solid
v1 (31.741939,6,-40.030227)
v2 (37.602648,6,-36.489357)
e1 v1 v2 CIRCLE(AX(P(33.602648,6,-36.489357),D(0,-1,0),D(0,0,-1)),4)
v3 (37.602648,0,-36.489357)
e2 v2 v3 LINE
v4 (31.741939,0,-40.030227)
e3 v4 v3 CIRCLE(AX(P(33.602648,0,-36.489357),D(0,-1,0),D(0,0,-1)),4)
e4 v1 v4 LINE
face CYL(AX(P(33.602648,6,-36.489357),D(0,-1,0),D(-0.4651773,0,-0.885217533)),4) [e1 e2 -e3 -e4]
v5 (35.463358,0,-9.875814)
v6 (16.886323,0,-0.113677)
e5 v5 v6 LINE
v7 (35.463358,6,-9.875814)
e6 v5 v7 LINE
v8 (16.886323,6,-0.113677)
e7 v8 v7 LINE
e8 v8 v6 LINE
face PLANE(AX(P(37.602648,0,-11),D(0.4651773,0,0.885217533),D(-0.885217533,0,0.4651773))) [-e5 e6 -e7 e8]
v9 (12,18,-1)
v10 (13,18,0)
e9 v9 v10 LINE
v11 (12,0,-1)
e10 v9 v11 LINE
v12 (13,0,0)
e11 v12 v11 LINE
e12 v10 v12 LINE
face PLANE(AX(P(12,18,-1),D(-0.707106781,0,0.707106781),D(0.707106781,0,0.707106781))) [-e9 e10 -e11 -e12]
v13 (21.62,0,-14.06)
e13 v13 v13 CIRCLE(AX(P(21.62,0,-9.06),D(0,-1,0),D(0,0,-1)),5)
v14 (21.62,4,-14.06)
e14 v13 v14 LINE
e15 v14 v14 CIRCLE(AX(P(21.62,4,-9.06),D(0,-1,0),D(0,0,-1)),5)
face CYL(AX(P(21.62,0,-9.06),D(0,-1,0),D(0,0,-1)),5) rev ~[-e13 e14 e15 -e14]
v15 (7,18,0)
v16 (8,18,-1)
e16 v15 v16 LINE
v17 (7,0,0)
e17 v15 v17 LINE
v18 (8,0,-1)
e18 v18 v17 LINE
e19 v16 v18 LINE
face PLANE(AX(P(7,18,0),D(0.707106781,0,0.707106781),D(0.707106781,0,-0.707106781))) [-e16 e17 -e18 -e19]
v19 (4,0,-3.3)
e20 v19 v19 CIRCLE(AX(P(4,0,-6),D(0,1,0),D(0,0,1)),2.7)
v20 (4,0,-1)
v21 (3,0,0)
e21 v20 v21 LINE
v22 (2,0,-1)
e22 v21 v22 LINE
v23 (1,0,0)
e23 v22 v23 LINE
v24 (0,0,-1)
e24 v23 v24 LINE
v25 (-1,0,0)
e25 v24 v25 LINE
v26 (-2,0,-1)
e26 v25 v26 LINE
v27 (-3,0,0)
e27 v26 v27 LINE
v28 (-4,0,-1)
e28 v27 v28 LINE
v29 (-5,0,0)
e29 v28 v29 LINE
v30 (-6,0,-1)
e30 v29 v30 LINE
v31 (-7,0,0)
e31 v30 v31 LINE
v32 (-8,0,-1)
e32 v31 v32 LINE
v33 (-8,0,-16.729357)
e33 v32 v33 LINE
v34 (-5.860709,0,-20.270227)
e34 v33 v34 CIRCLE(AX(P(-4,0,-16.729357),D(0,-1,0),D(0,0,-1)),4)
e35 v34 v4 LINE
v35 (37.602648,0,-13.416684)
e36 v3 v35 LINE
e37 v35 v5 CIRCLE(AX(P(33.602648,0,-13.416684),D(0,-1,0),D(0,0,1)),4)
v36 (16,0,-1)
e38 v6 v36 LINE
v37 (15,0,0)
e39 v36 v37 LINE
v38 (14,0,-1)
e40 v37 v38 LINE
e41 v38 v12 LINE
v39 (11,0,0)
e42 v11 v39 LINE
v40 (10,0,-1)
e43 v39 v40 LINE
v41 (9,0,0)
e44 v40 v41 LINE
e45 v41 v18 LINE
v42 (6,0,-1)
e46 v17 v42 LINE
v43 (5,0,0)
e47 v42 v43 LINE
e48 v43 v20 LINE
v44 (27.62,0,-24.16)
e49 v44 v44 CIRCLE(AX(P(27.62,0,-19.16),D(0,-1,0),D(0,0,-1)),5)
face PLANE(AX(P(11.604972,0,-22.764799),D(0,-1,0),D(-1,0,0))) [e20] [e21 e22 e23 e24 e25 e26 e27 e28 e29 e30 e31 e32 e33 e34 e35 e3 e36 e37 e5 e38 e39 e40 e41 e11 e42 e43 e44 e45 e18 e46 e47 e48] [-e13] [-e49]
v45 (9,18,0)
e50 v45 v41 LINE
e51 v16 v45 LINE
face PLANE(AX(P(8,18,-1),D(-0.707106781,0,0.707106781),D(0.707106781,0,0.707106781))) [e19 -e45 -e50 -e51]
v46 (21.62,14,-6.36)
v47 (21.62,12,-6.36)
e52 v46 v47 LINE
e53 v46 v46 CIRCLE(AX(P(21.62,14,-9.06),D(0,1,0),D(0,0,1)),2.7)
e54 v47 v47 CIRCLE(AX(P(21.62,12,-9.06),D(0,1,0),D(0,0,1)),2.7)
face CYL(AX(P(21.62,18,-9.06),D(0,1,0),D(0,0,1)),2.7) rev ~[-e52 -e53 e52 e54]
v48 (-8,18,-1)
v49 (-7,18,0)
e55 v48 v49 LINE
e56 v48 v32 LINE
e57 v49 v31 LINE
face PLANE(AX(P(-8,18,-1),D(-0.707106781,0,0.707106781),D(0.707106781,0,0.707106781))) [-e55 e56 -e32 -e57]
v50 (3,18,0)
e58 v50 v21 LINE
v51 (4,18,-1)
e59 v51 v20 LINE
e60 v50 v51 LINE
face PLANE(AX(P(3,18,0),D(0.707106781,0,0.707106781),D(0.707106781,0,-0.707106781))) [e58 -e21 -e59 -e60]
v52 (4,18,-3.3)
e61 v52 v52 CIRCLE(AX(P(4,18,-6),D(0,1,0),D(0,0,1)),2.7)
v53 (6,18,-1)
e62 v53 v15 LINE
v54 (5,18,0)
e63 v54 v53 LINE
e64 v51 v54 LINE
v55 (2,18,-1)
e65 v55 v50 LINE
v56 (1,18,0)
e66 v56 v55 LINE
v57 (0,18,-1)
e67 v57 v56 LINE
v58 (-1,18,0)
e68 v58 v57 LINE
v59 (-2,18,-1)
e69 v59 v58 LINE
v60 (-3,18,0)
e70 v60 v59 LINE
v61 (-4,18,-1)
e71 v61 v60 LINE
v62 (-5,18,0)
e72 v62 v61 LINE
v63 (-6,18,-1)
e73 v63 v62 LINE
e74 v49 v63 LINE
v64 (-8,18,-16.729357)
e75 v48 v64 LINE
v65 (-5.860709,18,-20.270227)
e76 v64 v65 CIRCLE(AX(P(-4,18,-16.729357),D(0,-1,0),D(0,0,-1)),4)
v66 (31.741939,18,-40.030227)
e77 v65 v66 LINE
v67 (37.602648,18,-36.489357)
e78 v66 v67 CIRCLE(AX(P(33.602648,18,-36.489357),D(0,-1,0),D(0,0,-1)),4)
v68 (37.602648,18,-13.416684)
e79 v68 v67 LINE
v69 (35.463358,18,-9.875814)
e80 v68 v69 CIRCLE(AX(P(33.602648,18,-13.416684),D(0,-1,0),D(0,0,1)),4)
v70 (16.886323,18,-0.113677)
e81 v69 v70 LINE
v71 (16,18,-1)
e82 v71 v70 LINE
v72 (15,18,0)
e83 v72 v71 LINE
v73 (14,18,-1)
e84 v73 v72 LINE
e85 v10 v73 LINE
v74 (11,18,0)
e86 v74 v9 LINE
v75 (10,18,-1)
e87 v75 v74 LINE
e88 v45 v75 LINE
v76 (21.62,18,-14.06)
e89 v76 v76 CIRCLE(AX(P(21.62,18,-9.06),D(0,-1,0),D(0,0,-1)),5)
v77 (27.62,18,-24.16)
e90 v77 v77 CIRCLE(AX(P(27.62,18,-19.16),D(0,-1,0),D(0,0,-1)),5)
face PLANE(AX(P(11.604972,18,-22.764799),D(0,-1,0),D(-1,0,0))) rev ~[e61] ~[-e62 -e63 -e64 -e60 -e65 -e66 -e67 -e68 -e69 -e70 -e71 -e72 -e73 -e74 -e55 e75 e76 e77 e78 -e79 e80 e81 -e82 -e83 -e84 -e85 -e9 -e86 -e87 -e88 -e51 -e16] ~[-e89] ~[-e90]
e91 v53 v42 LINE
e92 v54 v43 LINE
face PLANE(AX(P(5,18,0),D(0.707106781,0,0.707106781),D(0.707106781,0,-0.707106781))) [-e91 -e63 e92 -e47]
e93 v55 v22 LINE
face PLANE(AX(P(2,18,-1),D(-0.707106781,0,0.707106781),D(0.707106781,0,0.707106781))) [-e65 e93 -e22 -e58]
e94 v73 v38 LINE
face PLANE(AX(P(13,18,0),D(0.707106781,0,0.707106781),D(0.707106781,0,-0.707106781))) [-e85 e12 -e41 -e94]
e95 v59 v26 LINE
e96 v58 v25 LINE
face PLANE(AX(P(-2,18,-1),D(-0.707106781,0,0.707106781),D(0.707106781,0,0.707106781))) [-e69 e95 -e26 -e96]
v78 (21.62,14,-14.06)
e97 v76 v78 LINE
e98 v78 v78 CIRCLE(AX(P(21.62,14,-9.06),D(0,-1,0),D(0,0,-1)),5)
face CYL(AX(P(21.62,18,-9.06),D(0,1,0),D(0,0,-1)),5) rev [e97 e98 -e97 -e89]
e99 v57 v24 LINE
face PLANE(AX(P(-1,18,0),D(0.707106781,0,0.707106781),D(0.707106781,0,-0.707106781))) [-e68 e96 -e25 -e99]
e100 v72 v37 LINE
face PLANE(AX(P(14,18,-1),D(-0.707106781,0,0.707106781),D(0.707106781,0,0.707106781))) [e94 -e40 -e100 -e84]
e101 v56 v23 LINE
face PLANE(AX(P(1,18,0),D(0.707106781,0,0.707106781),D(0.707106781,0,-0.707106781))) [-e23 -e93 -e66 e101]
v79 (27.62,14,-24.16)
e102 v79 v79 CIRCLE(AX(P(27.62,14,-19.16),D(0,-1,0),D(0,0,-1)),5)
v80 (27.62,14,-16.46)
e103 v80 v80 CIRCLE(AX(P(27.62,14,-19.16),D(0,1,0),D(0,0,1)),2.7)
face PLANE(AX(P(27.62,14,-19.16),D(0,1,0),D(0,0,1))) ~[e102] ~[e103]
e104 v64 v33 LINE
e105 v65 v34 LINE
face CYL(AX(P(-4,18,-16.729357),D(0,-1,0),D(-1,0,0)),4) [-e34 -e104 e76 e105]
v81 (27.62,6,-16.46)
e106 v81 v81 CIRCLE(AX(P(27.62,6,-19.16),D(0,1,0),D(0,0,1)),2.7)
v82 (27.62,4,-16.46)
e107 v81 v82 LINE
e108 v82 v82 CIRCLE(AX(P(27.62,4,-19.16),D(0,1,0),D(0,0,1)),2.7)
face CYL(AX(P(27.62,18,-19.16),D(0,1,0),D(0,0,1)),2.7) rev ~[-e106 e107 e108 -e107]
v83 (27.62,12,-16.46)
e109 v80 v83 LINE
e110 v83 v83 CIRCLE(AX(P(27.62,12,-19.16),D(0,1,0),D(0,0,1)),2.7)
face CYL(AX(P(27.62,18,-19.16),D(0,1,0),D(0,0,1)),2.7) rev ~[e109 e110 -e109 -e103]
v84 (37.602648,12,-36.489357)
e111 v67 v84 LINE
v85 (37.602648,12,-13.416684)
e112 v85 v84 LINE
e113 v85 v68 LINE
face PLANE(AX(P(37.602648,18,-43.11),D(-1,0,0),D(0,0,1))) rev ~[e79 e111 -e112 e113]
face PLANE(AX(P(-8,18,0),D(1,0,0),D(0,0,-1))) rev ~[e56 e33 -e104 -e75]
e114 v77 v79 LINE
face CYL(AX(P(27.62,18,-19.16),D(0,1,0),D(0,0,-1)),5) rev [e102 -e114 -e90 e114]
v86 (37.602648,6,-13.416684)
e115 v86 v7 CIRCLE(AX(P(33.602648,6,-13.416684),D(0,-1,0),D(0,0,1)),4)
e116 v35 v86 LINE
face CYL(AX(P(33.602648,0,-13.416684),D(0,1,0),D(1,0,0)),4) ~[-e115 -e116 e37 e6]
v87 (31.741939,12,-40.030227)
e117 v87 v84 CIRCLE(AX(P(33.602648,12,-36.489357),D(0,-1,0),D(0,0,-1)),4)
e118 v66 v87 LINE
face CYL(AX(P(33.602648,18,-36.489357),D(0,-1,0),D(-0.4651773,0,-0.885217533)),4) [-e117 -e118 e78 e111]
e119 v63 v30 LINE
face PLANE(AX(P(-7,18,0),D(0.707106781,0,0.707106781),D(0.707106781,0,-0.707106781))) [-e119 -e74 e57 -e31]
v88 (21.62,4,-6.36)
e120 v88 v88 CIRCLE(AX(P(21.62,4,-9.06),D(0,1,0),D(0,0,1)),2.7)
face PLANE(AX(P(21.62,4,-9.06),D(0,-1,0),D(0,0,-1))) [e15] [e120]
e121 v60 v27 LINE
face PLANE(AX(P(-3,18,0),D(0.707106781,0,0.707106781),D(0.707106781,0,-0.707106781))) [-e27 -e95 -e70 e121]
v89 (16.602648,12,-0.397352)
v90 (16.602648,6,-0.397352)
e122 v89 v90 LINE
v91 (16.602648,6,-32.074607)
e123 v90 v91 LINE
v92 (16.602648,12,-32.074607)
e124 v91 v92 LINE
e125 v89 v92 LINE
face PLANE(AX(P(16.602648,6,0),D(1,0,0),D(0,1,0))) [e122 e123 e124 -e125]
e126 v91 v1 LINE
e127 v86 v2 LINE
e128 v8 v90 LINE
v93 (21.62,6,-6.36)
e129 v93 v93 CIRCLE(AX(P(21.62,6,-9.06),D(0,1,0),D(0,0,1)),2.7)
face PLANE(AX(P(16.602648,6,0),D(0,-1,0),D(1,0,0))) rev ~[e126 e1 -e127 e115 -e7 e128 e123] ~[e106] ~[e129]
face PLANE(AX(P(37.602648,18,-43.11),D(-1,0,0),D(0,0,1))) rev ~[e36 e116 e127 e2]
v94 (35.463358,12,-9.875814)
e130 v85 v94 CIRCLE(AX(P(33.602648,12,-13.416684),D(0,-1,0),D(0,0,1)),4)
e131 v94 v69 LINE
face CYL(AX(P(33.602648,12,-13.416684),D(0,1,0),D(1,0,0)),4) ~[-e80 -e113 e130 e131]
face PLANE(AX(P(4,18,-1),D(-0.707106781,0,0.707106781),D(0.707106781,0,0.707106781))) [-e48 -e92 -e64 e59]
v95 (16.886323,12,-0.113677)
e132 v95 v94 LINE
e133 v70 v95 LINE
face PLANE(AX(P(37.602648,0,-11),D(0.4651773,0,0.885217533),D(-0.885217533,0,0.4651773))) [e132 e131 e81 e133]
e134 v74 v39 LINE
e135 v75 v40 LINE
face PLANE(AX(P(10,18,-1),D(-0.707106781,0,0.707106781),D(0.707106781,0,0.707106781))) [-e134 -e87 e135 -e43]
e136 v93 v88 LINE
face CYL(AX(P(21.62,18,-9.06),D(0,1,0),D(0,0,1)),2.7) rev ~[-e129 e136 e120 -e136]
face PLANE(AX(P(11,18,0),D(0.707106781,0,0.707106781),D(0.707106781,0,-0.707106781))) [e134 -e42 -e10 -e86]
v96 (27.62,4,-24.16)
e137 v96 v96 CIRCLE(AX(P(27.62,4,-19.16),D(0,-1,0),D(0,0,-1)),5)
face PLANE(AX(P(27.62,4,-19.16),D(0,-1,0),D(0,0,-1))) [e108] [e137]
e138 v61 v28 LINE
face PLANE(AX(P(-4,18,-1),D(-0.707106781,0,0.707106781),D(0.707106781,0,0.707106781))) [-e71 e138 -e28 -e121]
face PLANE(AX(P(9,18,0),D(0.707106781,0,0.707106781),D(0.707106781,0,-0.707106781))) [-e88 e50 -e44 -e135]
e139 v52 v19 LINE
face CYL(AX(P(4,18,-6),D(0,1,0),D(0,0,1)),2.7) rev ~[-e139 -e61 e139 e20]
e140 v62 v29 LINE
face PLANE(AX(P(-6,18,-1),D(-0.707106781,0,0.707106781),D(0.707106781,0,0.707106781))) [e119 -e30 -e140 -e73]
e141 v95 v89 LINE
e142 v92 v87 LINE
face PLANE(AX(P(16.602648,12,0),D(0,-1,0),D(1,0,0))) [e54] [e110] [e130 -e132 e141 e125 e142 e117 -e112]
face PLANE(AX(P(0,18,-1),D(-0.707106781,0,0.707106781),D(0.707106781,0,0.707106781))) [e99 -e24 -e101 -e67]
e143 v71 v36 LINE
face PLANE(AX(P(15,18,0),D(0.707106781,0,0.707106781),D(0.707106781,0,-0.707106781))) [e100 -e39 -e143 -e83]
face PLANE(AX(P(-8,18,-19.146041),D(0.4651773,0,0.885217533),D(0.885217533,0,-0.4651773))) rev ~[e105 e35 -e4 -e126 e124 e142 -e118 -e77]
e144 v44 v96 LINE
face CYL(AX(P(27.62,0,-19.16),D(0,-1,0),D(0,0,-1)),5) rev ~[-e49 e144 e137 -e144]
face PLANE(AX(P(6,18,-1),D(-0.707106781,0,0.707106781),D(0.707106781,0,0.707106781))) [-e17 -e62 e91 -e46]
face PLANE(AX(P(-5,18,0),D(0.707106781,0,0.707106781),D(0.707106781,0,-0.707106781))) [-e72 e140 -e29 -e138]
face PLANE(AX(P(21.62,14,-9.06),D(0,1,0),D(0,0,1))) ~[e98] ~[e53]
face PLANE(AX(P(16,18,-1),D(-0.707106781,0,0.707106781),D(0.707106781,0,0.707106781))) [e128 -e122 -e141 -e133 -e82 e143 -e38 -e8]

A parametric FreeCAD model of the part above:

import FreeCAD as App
import Part
import Sketcher
Q = App.Units.Quantity


def edges_at(feature, points):
    """Names of the edges that pass closest to the given points."""
    edges = feature.Shape.Edges
    near = lambda p: min(range(len(edges)), key=lambda i: edges[i].distToShape(Part.Vertex(*p))[0])
    return sorted({f"Edge{near(p) + 1}" for p in points})


def add_polygon(sketch, points):
    """Adds a closed chain of lines whose ends are joined by coincident constraints."""
    first, n = sketch.GeometryCount, len(points)
    for a, b in zip(points, points[1:] + points[:1]):
        sketch.addGeometry(Part.LineSegment(App.Vector(*a, 0), App.Vector(*b, 0)), False)
    for i in range(n):
        sketch.addConstraint(Sketcher.Constraint("Coincident", first + i, 2, first + (i + 1) % n, 1))

doc = App.newDocument("Part")
params = doc.addObject("Spreadsheet::Sheet", "Params")
for row, (alias, value) in enumerate([
    ("sketch1_width", "16.67 mm"),
    ("sketch1_height", "24.11 mm"),
    ("sketch1_height2", "15.35 mm"),
    ("pad1_length", "18 mm"),
    ("sketch2_width", "8 mm"),
    ("sketch2_height", "15.35 mm"),
    ("pad2_length", "18 mm"),
    ("sketch3_diameter", "5.4 mm"),
    ("sketch4_width", "21 mm"),
    ("sketch4_height", "6 mm"),
    ("sketch5_height", "1.2 mm"),
    ("sketch5_height2", "0.2 mm"),
    ("sketch5_width", "24.67 mm"),
    ("sketch6_diameter", "10 mm"),
    ("pocket4_length", "4 mm"),
    ("fillet_radius", "4 mm"),
], start=1):
    params.set(f"A{row}", alias)
    params.set(f"B{row}", "=" + value)
    params.setAlias(f"B{row}", alias)

body = doc.addObject("PartDesign::Body", "Body")

sketch1 = doc.addObject("Sketcher::SketchObject", "Sketch")
body.addObject(sketch1)
sketch1.AttachmentSupport = (doc.XZ_Plane, [""])
sketch1.MapMode = "FlatFace"
add_polygon(sketch1, [(38, -11), (38, -35), (0, -15), (0, 0), (17, 0)])
sketch1.addConstraint([
    Sketcher.Constraint("Vertical", 0),
    Sketcher.Constraint("Vertical", 2),
    Sketcher.Constraint("Horizontal", 3),
    Sketcher.Constraint("Coincident", 2, 2, -1, 1),
    Sketcher.Constraint("Parallel", 1, 4),
    Sketcher.Constraint("DistanceY", 4, 2, -1, 1, Q("11 mm")),
    Sketcher.Constraint("DistanceX", 3, 1, 3, 2, Q("16.67 mm")),
    Sketcher.Constraint("DistanceY", 0, 2, 0, 1, Q("24.11 mm")),
    Sketcher.Constraint("DistanceY", 2, 1, 2, 2, Q("15.35 mm")),
])
sketch1.setExpression("Constraints[11]", "Params.sketch1_width")
sketch1.setExpression("Constraints[12]", "Params.sketch1_height")
sketch1.setExpression("Constraints[13]", "Params.sketch1_height2")
pad1 = doc.addObject("PartDesign::Pad", "Pad")
body.addObject(pad1)
pad1.Profile = sketch1
pad1.setExpression("Length", "Params.pad1_length")
pad1.Reversed = True

sketch2 = doc.addObject("Sketcher::SketchObject", "Sketch001")
body.addObject(sketch2)
sketch2.AttachmentSupport = (doc.XZ_Plane, [""])
sketch2.MapMode = "FlatFace"
sketch2.AttachmentOffset = App.Placement(App.Vector(0, 0, -18), App.Rotation())
add_polygon(sketch2, [(-8, 0), (0, 0), (0, -15), (38, -35), (38, -43), (-8, -19)])
sketch2.addConstraint([
    Sketcher.Constraint("Horizontal", 0),
    Sketcher.Constraint("Vertical", 1),
    Sketcher.Constraint("Vertical", 3),
    Sketcher.Constraint("Vertical", 5),
    Sketcher.Constraint("Coincident", 0, 2, -1, 1),
    Sketcher.Constraint("Parallel", 2, 4),
    Sketcher.Constraint("Equal", 0, 3),
    Sketcher.Constraint("DistanceX", 0, 1, 0, 2, Q("8 mm")),
    Sketcher.Constraint("DistanceY", 1, 2, 1, 1, Q("15.35 mm")),
    Sketcher.Constraint("DistanceY", 2, 2, -1, 1, Q("35.11 mm")),
    Sketcher.Constraint("DistanceY", 5, 1, 5, 2, Q("19.146041 mm")),
])
sketch2.setExpression("Constraints[13]", "Params.sketch2_width")
sketch2.setExpression("Constraints[14]", "Params.sketch2_height")
pad2 = doc.addObject("PartDesign::Pad", "Pad001")
body.addObject(pad2)
pad2.Profile = sketch2
pad2.setExpression("Length", "Params.pad2_length")

sketch3 = doc.addObject("Sketcher::SketchObject", "Sketch002")
body.addObject(sketch3)
sketch3.AttachmentSupport = (doc.XZ_Plane, [""])
sketch3.MapMode = "FlatFace"
sketch3.AttachmentOffset = App.Placement(App.Vector(0, 0, -18), App.Rotation())
sketch3.addGeometry([
    Part.Circle(App.Vector(4, -6, 0), App.Vector(0, 0, 1), 2.7),
    Part.Circle(App.Vector(21.6, -9.1, 0), App.Vector(0, 0, 1), 2.7),
    Part.Circle(App.Vector(27.6, -19.2, 0), App.Vector(0, 0, 1), 2.7),
], False)
sketch3.addConstraint([
    Sketcher.Constraint("Equal", 0, 1),
    Sketcher.Constraint("Equal", 1, 2),
    Sketcher.Constraint("Diameter", 0, Q("5.4 mm")),
    Sketcher.Constraint("DistanceX", -1, 1, 0, 3, Q("4 mm")),
    Sketcher.Constraint("DistanceY", 0, 3, -1, 1, Q("6 mm")),
    Sketcher.Constraint("DistanceX", 1, 3, 2, 3, Q("6 mm")),
    Sketcher.Constraint("DistanceY", 2, 3, 1, 3, Q("10.1 mm")),
    Sketcher.Constraint("DistanceX", -1, 1, 1, 3, Q("21.62 mm")),
    Sketcher.Constraint("DistanceY", 1, 3, -1, 1, Q("9.06 mm")),
])
sketch3.setExpression("Constraints[2]", "Params.sketch3_diameter")
pocket1 = doc.addObject("PartDesign::Pocket", "Pocket")
body.addObject(pocket1)
pocket1.Profile = sketch3
pocket1.Type = "ThroughAll"
pocket1.Reversed = True

sketch4 = doc.addObject("Sketcher::SketchObject", "Sketch003")
body.addObject(sketch4)
sketch4.AttachmentSupport = (doc.XY_Plane, [""])
sketch4.MapMode = "FlatFace"
add_polygon(sketch4, [(17, 12), (17, 6), (38, 6), (38, 12)])
sketch4.addConstraint([
    Sketcher.Constraint("Vertical", 0),
    Sketcher.Constraint("Horizontal", 1),
    Sketcher.Constraint("Vertical", 2),
    Sketcher.Constraint("Horizontal", 3),
    Sketcher.Constraint("DistanceX", 1, 1, 1, 2, Q("21 mm")),
    Sketcher.Constraint("DistanceY", 0, 2, 0, 1, Q("6 mm")),
    Sketcher.Constraint("DistanceY", -1, 1, 0, 2, Q("6 mm")),
    Sketcher.Constraint("DistanceX", -1, 1, 0, 2, Q("16.602648 mm")),
])
sketch4.setExpression("Constraints[8]", "Params.sketch4_width")
sketch4.setExpression("Constraints[9]", "Params.sketch4_height")
pocket2 = doc.addObject("PartDesign::Pocket", "Pocket001")
body.addObject(pocket2)
pocket2.Profile = sketch4
pocket2.Type = "ThroughAll"

sketch5 = doc.addObject("Sketcher::SketchObject", "Sketch004")
body.addObject(sketch5)
sketch5.AttachmentSupport = (doc.XZ_Plane, [""])
sketch5.MapMode = "FlatFace"
sketch5.AttachmentOffset = App.Placement(App.Vector(0, 0, -18), App.Rotation())
add_polygon(sketch5, [(-8, -1), (-8, 0.2), (16.67, 0.2), (16.67, 0), (16.89, -0.11), (16, -1), (15, 0), (14, -1), (13, 0), (12, -1), (11, 0), (10, -1), (9, 0), (8, -1), (7, 0), (6, -1), (5, 0), (4, -1), (3, 0), (2, -1), (1, 0), (0, -1), (-1, 0), (-2, -1), (-3, 0), (-4, -1), (-5, 0), (-6, -1), (-7, 0)])
sketch5.addConstraint([
    Sketcher.Constraint("Vertical", 0),
    Sketcher.Constraint("Horizontal", 1),
    Sketcher.Constraint("Vertical", 2),
    Sketcher.Constraint("Symmetric", 19, 2, 21, 2, -1, 1),
    Sketcher.Constraint("Symmetric", 17, 2, 23, 2, -1, 1),
    Sketcher.Constraint("Symmetric", 15, 2, 25, 2, -1, 1),
    Sketcher.Constraint("Symmetric", 13, 2, 27, 2, -1, 1),
    Sketcher.Constraint("Symmetric", 18, 2, 22, 2, -2),
    Sketcher.Constraint("Symmetric", 16, 2, 24, 2, -2),
    Sketcher.Constraint("Symmetric", 14, 2, 26, 2, -2),
    Sketcher.Constraint("Symmetric", 12, 2, 28, 2, -2),
    Sketcher.Constraint("PointOnObject", 2, 2, -1),
    Sketcher.Constraint("PointOnObject", 5, 2, -1),
    Sketcher.Constraint("PointOnObject", 7, 2, -1),
    Sketcher.Constraint("PointOnObject", 9, 2, -1),
    Sketcher.Constraint("PointOnObject", 11, 2, -1),
    Sketcher.Constraint("PointOnObject", 13, 2, -1),
    Sketcher.Constraint("PointOnObject", 15, 2, -1),
    Sketcher.Constraint("PointOnObject", 17, 2, -1),
    Sketcher.Constraint("PointOnObject", 19, 2, -1),
    Sketcher.Constraint("PointOnObject", 20, 2, -2),
    Sketcher.Constraint("Perpendicular", 4, 5),
    Sketcher.Constraint("Perpendicular", 5, 6),
    Sketcher.Constraint("Perpendicular", 6, 7),
    Sketcher.Constraint("Perpendicular", 7, 8),
    Sketcher.Constraint("Perpendicular", 8, 9),
    Sketcher.Constraint("Perpendicular", 9, 10),
    Sketcher.Constraint("Perpendicular", 10, 11),
    Sketcher.Constraint("Perpendicular", 11, 12),
    Sketcher.Constraint("Perpendicular", 12, 13),
    Sketcher.Constraint("Perpendicular", 13, 14),
    Sketcher.Constraint("Perpendicular", 14, 15),
    Sketcher.Constraint("Perpendicular", 15, 16),
    Sketcher.Constraint("Perpendicular", 16, 17),
    Sketcher.Constraint("Perpendicular", 17, 18),
    Sketcher.Constraint("Perpendicular", 18, 19),
    Sketcher.Constraint("Perpendicular", 19, 20),
    Sketcher.Constraint("Perpendicular", 20, 21),
    Sketcher.Constraint("Horizontal", 4, 2, 6, 2),
    Sketcher.Constraint("Horizontal", 6, 2, 8, 2),
    Sketcher.Constraint("Horizontal", 8, 2, 10, 2),
    Sketcher.Constraint("Horizontal", 10, 2, 12, 2),
    Sketcher.Constraint("Horizontal", 12, 2, 14, 2),
    Sketcher.Constraint("Horizontal", 14, 2, 16, 2),
    Sketcher.Constraint("Horizontal", 16, 2, 18, 2),
    Sketcher.Constraint("Horizontal", 18, 2, 20, 2),
    Sketcher.Constraint("DistanceY", 0, 1, 0, 2, Q("1.2 mm")),
    Sketcher.Constraint("DistanceY", 2, 2, 2, 1, Q("0.2 mm")),
    Sketcher.Constraint("DistanceX", 1, 1, 1, 2, Q("24.67 mm")),
    Sketcher.Constraint("Distance", 4, Q("1.25345 mm")),
])
sketch5.setExpression("Constraints[75]", "Params.sketch5_height")
sketch5.setExpression("Constraints[76]", "Params.sketch5_height2")
sketch5.setExpression("Constraints[77]", "Params.sketch5_width")
pocket3 = doc.addObject("PartDesign::Pocket", "Pocket002")
body.addObject(pocket3)
pocket3.Profile = sketch5
pocket3.Type = "ThroughAll"
pocket3.Reversed = True

sketch6 = doc.addObject("Sketcher::SketchObject", "Sketch005")
body.addObject(sketch6)
sketch6.AttachmentSupport = (doc.XZ_Plane, [""])
sketch6.MapMode = "FlatFace"
sketch6.addGeometry([
    Part.Circle(App.Vector(22, -9, 0), App.Vector(0, 0, 1), 5),
    Part.Circle(App.Vector(28, -19, 0), App.Vector(0, 0, 1), 5),
], False)
sketch6.addConstraint([
    Sketcher.Constraint("Equal", 0, 1),
    Sketcher.Constraint("Diameter", 0, Q("10 mm")),
    Sketcher.Constraint("DistanceX", 0, 3, 1, 3, Q("6 mm")),
    Sketcher.Constraint("DistanceY", 1, 3, 0, 3, Q("10.1 mm")),
    Sketcher.Constraint("DistanceX", -1, 1, 0, 3, Q("21.62 mm")),
    Sketcher.Constraint("DistanceY", 0, 3, -1, 1, Q("9.06 mm")),
])
sketch6.setExpression("Constraints[1]", "Params.sketch6_diameter")
pocket4 = doc.addObject("PartDesign::Pocket", "Pocket003")
body.addObject(pocket4)
pocket4.Profile = sketch6
pocket4.setExpression("Length", "Params.pocket4_length")
doc.recompute()

datumplane = doc.addObject("PartDesign::Plane", "DatumPlane")
body.addObject(datumplane)
datumplane.AttachmentSupport = (doc.XZ_Plane, [""])
datumplane.MapMode = "FlatFace"
datumplane.AttachmentOffset = App.Placement(App.Vector(0, 0, -9), App.Rotation())
mirrored = doc.addObject("PartDesign::Mirrored", "Mirrored")
body.addObject(mirrored)
mirrored.Originals = [pocket4]
mirrored.MirrorPlane = (datumplane, [""])
body.Tip = mirrored
doc.recompute()

fillet = doc.addObject("PartDesign::Fillet", "Fillet")
body.addObject(fillet)
fillet.Base = (mirrored, edges_at(mirrored, [
    (37.603, 15, -11),
    (-8, 9, -19.146),
    (37.603, 3, -43.11),
    (37.603, 15, -43.11),
    (37.603, 3, -11),
]))
fillet.setExpression("Radius", "Params.fillet_radius")

doc.recompute()
